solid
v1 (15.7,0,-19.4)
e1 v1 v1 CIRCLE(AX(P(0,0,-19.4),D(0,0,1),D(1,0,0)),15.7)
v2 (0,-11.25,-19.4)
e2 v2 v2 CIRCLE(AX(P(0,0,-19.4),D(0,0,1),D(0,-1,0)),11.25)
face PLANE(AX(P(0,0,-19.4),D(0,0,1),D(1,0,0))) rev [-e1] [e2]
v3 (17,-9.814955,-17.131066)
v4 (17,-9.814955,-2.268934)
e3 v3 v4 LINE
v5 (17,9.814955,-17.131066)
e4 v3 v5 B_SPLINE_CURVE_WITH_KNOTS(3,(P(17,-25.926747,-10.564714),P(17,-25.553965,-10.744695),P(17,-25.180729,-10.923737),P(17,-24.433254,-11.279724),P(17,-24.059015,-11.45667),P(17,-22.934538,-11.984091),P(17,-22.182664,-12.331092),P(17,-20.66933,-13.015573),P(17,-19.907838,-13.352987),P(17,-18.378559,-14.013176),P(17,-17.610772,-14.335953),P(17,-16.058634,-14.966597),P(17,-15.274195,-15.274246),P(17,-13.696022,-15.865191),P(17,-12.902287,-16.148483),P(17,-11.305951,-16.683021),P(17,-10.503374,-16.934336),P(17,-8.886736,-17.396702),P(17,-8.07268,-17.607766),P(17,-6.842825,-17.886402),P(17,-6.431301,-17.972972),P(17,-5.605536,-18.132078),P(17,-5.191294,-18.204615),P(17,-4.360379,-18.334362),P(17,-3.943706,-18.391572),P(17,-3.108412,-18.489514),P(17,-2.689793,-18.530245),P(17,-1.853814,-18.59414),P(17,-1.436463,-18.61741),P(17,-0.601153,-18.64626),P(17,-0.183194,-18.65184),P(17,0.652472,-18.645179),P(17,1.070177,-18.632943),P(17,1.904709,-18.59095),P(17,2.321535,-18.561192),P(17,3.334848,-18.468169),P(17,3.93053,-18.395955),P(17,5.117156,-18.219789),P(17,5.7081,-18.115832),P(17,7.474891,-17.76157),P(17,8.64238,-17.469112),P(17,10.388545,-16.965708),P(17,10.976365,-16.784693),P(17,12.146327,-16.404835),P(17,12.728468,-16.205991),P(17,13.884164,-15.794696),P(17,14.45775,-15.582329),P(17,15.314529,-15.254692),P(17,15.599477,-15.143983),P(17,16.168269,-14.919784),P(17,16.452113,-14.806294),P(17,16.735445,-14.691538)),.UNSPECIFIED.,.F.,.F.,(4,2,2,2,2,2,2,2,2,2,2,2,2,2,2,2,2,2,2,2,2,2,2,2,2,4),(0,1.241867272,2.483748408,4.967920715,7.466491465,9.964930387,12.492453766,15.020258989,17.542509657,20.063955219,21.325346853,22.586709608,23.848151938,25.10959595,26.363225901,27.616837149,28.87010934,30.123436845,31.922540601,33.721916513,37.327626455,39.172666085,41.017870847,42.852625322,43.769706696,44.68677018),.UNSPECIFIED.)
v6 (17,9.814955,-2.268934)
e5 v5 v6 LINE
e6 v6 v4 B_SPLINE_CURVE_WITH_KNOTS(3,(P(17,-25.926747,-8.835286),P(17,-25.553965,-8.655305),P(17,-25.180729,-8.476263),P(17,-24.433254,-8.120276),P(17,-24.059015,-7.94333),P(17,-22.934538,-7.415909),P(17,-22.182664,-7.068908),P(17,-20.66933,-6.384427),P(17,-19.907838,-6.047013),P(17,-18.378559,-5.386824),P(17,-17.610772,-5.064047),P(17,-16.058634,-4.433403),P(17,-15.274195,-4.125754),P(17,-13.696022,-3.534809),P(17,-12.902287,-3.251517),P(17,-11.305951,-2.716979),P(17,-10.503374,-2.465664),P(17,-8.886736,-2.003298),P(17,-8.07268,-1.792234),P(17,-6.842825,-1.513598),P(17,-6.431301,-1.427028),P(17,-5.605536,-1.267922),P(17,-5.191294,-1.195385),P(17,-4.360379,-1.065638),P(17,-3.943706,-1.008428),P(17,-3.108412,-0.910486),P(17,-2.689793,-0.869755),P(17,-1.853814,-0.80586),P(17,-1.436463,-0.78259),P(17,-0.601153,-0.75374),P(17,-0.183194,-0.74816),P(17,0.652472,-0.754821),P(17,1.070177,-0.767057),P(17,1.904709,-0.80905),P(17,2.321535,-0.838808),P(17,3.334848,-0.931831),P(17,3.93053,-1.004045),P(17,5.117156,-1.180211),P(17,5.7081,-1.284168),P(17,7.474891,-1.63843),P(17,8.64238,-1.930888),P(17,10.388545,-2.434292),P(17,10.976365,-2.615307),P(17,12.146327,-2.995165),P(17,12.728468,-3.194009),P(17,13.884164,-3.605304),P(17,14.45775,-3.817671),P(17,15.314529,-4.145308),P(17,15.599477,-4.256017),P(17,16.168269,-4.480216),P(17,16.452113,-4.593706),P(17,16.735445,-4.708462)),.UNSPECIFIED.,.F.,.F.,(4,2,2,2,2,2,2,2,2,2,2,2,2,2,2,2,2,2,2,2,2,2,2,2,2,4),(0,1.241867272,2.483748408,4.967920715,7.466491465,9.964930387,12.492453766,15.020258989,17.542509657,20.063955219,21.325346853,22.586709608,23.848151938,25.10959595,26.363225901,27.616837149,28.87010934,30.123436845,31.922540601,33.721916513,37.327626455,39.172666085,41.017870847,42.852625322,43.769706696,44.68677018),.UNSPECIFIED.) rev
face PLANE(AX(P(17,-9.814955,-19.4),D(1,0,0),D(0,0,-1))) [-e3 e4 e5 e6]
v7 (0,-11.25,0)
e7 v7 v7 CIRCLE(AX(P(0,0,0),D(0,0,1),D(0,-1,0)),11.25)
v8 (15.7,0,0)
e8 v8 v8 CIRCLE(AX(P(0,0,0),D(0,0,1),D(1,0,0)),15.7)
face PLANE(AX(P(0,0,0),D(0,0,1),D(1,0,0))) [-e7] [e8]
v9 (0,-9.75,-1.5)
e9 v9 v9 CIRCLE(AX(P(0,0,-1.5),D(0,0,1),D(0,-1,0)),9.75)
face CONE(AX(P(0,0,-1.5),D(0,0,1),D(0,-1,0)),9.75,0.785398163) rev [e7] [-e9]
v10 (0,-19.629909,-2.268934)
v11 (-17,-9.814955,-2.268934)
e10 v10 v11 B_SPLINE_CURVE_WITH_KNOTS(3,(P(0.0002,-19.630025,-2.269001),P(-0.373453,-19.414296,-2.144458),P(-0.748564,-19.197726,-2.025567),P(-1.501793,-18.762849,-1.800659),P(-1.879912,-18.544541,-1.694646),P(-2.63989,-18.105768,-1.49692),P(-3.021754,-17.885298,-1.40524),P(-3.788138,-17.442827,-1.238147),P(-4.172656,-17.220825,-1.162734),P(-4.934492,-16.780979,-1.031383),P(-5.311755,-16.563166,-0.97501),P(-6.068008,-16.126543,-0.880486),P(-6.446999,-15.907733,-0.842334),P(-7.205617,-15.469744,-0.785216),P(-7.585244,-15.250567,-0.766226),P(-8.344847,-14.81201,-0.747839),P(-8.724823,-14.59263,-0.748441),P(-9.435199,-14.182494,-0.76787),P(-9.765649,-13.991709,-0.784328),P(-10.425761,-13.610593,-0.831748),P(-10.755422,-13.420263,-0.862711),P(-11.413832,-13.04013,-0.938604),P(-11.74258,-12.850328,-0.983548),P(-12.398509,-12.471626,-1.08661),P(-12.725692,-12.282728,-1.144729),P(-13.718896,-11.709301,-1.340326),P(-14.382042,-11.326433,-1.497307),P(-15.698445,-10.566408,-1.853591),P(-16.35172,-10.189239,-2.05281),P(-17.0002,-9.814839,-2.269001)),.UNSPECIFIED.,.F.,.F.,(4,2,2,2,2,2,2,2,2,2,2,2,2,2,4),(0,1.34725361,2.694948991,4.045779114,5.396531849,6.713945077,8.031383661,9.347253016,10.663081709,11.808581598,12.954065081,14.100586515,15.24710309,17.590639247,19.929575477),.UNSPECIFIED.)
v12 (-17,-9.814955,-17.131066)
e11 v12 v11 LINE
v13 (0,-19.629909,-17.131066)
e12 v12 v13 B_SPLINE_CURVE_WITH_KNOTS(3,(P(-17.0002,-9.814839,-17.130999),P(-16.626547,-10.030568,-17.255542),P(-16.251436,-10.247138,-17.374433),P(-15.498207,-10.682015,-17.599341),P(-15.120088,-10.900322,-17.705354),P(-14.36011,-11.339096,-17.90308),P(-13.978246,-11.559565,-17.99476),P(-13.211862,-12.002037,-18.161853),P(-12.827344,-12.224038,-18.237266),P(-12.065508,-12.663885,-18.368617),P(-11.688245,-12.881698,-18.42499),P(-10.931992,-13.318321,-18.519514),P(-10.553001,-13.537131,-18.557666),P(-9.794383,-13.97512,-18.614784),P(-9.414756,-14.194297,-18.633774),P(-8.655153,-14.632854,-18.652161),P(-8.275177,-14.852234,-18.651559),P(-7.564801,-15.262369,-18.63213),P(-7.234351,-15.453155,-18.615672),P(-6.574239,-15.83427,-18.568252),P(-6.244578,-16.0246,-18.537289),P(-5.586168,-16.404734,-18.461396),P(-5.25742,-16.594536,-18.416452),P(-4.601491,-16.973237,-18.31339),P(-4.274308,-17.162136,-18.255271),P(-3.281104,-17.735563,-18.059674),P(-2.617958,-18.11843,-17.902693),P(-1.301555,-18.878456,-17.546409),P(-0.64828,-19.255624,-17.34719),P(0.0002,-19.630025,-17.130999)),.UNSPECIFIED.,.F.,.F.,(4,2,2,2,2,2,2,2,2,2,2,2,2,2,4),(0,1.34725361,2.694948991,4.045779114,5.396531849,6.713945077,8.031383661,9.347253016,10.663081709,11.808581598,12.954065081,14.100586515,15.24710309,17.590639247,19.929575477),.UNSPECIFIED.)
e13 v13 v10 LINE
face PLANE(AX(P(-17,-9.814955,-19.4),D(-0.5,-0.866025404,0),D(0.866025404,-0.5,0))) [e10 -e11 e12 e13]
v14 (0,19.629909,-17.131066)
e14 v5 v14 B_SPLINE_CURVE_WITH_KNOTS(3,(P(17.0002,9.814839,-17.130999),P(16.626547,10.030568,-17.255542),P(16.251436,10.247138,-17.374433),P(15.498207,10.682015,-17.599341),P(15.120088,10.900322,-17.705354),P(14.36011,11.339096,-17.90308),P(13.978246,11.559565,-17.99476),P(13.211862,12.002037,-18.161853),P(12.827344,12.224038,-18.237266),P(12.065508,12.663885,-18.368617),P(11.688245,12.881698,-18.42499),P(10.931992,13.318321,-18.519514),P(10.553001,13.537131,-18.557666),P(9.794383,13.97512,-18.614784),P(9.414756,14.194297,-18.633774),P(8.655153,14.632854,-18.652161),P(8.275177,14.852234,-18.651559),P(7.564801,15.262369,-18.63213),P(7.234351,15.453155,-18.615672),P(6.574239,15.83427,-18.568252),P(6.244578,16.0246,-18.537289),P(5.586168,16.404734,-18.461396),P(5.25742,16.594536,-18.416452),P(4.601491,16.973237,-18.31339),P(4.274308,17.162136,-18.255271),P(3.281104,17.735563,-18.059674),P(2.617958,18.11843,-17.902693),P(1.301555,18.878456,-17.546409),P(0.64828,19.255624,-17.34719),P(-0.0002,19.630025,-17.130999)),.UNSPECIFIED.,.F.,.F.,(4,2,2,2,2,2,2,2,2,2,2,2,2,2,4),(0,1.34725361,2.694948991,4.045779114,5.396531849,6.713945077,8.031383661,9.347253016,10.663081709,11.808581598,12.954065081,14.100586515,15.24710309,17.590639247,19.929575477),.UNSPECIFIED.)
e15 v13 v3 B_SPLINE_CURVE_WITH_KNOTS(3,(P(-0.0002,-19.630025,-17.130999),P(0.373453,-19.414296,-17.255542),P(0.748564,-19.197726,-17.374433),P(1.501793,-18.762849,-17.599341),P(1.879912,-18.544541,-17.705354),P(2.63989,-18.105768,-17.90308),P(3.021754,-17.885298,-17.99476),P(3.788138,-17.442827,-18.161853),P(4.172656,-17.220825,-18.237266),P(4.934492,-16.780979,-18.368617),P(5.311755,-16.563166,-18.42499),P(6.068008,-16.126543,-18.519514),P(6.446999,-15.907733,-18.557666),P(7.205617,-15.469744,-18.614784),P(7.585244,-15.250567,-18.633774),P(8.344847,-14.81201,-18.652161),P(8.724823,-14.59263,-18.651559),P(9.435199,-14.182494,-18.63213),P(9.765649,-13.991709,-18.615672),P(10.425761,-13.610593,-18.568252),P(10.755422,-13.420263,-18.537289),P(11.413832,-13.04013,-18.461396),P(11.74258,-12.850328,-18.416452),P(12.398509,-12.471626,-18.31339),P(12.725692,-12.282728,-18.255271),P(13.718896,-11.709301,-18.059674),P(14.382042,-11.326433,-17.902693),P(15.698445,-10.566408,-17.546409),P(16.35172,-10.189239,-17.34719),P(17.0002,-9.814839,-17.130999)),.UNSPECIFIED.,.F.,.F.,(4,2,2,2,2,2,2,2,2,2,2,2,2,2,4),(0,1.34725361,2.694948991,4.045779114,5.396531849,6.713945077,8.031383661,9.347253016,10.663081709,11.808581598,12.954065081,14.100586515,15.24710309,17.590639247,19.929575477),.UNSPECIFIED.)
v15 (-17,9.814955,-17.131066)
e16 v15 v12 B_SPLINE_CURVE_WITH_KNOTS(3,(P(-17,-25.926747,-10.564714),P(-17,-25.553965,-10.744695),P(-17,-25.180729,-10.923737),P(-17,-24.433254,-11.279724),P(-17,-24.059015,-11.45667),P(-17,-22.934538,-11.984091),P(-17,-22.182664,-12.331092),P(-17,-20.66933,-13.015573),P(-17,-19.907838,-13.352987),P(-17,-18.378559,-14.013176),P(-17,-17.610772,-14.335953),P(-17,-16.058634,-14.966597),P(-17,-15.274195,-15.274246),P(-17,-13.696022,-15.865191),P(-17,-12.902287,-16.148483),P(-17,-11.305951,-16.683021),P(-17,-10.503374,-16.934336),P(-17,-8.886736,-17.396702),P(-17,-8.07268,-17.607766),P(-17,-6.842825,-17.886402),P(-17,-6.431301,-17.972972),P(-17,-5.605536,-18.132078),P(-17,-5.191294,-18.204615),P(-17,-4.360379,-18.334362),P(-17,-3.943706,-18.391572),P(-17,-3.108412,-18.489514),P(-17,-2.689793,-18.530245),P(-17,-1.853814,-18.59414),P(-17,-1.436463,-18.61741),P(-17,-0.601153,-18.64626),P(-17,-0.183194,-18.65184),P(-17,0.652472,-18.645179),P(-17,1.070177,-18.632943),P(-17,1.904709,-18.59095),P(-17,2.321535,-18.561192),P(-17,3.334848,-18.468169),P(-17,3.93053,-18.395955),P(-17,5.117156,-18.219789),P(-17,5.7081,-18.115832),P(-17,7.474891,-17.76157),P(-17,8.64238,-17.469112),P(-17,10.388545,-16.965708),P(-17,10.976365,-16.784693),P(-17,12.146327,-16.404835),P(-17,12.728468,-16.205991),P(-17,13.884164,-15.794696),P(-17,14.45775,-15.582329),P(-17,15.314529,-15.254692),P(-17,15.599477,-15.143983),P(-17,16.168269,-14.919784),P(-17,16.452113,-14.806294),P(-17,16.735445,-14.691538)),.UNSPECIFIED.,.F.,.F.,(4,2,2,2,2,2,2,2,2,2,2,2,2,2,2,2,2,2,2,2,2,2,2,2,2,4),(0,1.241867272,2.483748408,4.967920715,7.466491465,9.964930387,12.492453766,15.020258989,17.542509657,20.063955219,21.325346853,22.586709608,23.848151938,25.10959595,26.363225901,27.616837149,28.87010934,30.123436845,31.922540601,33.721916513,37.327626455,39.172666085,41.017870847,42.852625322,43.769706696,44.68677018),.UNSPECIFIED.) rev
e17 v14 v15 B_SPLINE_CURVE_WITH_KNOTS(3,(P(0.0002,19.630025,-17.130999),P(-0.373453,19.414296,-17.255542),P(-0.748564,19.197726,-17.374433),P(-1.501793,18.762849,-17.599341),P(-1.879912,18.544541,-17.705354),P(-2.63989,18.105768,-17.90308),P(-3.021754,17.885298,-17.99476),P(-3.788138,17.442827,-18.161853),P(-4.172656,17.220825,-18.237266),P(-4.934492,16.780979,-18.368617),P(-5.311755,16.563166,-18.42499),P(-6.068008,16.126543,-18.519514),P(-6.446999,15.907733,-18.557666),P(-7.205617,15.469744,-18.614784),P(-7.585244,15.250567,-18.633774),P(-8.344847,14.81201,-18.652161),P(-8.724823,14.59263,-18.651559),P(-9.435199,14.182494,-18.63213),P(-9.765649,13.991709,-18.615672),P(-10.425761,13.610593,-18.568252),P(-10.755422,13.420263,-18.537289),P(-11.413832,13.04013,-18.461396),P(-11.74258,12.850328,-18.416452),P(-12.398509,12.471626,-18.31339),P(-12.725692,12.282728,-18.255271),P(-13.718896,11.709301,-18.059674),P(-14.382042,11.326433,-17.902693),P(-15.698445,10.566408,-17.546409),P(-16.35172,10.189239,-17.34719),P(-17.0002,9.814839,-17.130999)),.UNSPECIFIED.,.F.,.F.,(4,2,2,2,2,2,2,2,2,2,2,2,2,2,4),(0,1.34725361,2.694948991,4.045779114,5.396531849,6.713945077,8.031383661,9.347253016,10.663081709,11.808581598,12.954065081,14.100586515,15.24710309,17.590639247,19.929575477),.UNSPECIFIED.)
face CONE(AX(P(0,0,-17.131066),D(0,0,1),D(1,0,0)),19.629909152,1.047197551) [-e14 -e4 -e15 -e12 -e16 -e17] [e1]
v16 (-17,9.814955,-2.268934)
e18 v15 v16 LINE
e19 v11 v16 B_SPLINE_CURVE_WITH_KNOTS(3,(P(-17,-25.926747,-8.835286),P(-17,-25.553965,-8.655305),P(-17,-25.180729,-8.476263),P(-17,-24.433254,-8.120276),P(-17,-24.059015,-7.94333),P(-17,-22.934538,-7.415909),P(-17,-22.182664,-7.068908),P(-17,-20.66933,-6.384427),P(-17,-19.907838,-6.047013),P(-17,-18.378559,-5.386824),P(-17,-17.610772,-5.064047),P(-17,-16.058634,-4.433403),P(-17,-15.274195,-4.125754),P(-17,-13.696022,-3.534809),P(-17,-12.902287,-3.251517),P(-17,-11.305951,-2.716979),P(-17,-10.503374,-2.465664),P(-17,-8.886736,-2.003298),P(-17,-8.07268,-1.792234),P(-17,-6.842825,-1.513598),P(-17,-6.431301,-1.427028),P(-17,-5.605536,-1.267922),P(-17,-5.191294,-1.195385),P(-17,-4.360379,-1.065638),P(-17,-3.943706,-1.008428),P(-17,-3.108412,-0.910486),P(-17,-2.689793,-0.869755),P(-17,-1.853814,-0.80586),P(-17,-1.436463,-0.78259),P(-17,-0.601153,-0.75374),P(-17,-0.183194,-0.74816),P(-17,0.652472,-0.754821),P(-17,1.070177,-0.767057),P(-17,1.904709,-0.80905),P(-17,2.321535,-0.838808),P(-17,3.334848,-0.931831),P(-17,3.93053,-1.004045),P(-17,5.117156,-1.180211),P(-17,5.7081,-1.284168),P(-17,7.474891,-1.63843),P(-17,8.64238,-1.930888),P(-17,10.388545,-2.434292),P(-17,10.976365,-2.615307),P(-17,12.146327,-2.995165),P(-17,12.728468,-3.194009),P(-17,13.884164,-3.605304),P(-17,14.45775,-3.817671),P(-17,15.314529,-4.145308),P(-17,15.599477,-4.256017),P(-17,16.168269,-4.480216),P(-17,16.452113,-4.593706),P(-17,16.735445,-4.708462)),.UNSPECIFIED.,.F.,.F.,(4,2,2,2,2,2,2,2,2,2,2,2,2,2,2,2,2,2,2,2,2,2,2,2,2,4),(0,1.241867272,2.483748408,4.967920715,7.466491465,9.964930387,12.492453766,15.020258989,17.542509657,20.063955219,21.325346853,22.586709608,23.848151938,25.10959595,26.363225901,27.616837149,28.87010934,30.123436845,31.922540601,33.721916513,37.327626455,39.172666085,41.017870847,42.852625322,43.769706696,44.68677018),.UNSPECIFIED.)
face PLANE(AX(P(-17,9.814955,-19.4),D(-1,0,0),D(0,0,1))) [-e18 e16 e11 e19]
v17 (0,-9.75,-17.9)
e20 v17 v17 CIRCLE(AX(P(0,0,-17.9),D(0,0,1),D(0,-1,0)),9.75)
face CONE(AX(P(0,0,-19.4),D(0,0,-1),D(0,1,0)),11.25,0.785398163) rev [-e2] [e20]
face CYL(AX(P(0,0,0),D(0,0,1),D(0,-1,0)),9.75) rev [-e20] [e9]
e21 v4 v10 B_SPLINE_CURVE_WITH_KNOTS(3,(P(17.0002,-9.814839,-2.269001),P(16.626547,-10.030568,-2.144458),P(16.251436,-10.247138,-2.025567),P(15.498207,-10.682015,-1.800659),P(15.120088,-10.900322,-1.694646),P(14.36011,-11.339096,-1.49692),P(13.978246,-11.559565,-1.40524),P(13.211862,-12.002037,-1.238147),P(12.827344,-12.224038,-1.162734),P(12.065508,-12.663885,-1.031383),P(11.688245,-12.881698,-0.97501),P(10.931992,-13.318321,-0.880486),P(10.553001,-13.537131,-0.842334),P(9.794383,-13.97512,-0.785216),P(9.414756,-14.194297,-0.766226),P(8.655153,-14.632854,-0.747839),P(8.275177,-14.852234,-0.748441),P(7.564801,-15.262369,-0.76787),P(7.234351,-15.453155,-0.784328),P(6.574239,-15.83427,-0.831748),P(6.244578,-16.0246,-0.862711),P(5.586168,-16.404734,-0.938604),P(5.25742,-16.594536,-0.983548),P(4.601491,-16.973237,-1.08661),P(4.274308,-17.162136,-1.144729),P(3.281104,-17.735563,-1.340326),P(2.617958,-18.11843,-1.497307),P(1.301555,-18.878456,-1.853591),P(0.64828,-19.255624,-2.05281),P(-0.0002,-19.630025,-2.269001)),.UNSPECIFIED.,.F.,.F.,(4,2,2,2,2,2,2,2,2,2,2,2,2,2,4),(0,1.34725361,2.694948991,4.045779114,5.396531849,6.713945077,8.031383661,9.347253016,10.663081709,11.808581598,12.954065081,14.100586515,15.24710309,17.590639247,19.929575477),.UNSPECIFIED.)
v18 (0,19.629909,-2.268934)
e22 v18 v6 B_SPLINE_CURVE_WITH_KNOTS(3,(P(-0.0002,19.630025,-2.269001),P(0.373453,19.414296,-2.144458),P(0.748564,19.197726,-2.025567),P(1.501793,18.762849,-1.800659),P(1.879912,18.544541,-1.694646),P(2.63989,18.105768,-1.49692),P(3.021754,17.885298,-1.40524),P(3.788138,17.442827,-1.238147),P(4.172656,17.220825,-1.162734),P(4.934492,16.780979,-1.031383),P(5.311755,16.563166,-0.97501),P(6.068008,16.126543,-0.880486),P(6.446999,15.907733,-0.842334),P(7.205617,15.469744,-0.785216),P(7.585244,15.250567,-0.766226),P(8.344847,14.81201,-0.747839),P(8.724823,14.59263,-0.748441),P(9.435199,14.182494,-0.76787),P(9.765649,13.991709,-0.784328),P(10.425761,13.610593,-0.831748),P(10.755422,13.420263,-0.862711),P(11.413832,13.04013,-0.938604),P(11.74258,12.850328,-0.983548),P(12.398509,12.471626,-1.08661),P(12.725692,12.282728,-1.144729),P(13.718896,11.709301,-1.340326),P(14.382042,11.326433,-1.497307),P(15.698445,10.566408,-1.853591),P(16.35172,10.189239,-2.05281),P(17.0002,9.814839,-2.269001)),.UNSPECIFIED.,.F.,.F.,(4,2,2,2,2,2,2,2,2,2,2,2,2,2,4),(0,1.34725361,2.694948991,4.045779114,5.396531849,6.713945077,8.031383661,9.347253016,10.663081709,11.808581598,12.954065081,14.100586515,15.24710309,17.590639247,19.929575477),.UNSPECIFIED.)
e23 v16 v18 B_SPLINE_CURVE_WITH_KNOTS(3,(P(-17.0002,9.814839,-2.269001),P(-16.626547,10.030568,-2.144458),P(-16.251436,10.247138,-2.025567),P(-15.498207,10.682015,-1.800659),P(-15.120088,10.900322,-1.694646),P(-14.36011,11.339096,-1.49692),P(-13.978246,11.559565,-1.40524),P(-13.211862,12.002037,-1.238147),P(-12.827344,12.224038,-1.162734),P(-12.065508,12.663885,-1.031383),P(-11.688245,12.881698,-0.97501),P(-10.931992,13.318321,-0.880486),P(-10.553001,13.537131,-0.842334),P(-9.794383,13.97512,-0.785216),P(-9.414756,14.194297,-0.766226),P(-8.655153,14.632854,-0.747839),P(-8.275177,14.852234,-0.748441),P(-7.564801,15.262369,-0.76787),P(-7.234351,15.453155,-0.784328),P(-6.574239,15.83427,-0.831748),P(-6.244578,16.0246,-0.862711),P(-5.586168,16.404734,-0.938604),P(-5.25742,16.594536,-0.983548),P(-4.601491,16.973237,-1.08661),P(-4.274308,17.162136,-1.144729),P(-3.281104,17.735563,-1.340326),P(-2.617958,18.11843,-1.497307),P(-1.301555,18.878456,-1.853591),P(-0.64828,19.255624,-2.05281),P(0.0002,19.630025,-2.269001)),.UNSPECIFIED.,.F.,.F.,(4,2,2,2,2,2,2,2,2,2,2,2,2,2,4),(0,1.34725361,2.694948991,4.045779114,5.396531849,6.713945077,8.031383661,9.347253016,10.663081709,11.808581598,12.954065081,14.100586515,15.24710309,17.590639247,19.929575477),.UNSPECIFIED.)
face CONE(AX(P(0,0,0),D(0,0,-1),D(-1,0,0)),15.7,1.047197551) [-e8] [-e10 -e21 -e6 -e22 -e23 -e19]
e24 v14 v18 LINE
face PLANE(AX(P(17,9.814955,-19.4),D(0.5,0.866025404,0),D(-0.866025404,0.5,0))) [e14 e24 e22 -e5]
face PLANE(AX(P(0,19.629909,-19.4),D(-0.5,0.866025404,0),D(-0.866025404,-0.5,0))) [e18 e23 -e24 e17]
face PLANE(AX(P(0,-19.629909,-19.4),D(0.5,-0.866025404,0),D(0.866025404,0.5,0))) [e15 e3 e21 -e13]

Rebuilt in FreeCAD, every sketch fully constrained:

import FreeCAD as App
import Part
import Sketcher

V = App.Vector
Q = App.Units.Quantity


def add_polygon(sketch, points):
    """Adds a closed chain of lines whose ends are joined by coincident constraints."""
    first, n = sketch.GeometryCount, len(points)
    for a, b in zip(points, points[1:] + points[:1]):
        sketch.addGeometry(Part.LineSegment(App.Vector(*a, 0), App.Vector(*b, 0)), False)
    for i in range(n):
        sketch.addConstraint(Sketcher.Constraint("Coincident", first + i, 2, first + (i + 1) % n, 1))

doc = App.newDocument("Part")
body = doc.addObject("PartDesign::Body", "Body")

# Sketch on XY plane
sketch1 = body.newObject("Sketcher::SketchObject", "Sketch")
sketch1.AttachmentSupport = (doc.getObject("XY_Plane"), [""])
sketch1.MapMode = "FlatFace"
add_polygon(sketch1, [(0, 20), (-17, 10), (-17, -10), (0, -20), (17, -10), (17, 10)])  # lines 0-5
sketch1.addConstraint(Sketcher.Constraint("Vertical", 1))
sketch1.addConstraint(Sketcher.Constraint("Vertical", 4))
sketch1.addConstraint(Sketcher.Constraint("Symmetric", 0, 2, 3, 2, -1, 1))
sketch1.addConstraint(Sketcher.Constraint("Symmetric", 2, 2, 5, 2, -1, 1))
sketch1.addConstraint(Sketcher.Constraint("PointOnObject", 2, 2, -2))
sketch1.addConstraint(Sketcher.Constraint("Parallel", 2, 5))
sketch1.addConstraint(Sketcher.Constraint("Horizontal", 1, 2, 3, 2))
sketch1.addConstraint(Sketcher.Constraint("Angle", 0, Q("-150 deg")))
sketch1.addConstraint(Sketcher.Constraint("DistanceX", 0, 2, -1, 1, Q("17 mm")))
sketch1.addConstraint(Sketcher.Constraint("DistanceY", 1, 2, 1, 1, Q("19.629909 mm")))
pad1 = body.newObject("PartDesign::Pad", "Pad")
pad1.Profile = sketch1
pad1.Length = 19.4
pad1.Reversed = True

# Sketch on YZ plane
sketch2 = body.newObject("Sketcher::SketchObject", "Sketch001")
sketch2.AttachmentSupport = (doc.getObject("YZ_Plane"), [""])
sketch2.MapMode = "FlatFace"
add_polygon(sketch2, [(19.6, -19.4), (19.6, -17.1), (15.7, -19.4)])  # lines 0-2
add_polygon(sketch2, [(19.6, -2.3), (19.6, 0), (15.7, 0)])  # lines 3-5
sketch2.addConstraint(Sketcher.Constraint("Vertical", 0))
sketch2.addConstraint(Sketcher.Constraint("Horizontal", 2))
sketch2.addConstraint(Sketcher.Constraint("Vertical", 3))
sketch2.addConstraint(Sketcher.Constraint("Horizontal", 4))
sketch2.addConstraint(Sketcher.Constraint("PointOnObject", 3, 2, -1))
sketch2.addConstraint(Sketcher.Constraint("Vertical", 2, 2, 3, 2))
sketch2.addConstraint(Sketcher.Constraint("Vertical", 1, 2, 4, 2))
sketch2.addConstraint(Sketcher.Constraint("Equal", 0, 3))
sketch2.addConstraint(Sketcher.Constraint("Angle", 1, Q("-150 deg")))
sketch2.addConstraint(Sketcher.Constraint("DistanceX", -1, 1, 1, 2, Q("15.7 mm")))
sketch2.addConstraint(Sketcher.Constraint("DistanceY", 1, 2, -1, 1, Q("19.4 mm")))
sketch2.addConstraint(Sketcher.Constraint("DistanceX", 2, 1, 2, 2, Q("3.929909 mm")))
groove = body.newObject("PartDesign::Groove", "Groove")
groove.Profile = sketch2
groove.ReferenceAxis = (sketch2, ["V_Axis"])
groove.Angle = 360

# Sketch on YZ plane
sketch3 = body.newObject("Sketcher::SketchObject", "Sketch002")
sketch3.AttachmentSupport = (doc.getObject("YZ_Plane"), [""])
sketch3.MapMode = "FlatFace"
add_polygon(sketch3, [(11.2, 0), (0, 0), (0, -19.4), (11.2, -19.4), (9.8, -17.9), (9.8, -1.5)])  # lines 0-5
sketch3.addConstraint(Sketcher.Constraint("Horizontal", 0))
sketch3.addConstraint(Sketcher.Constraint("Vertical", 1))
sketch3.addConstraint(Sketcher.Constraint("Horizontal", 2))
sketch3.addConstraint(Sketcher.Constraint("Vertical", 4))
sketch3.addConstraint(Sketcher.Constraint("Coincident", 0, 2, -1, 1))
sketch3.addConstraint(Sketcher.Constraint("Perpendicular", 3, 5))
sketch3.addConstraint(Sketcher.Constraint("Vertical", 2, 2, 5, 2))
sketch3.addConstraint(Sketcher.Constraint("Equal", 3, 5))
sketch3.addConstraint(Sketcher.Constraint("DistanceY", 1, 2, 1, 1, Q("19.4 mm")))
sketch3.addConstraint(Sketcher.Constraint("DistanceY", 4, 1, 4, 2, Q("16.4 mm")))
sketch3.addConstraint(Sketcher.Constraint("DistanceX", 0, 2, 0, 1, Q("11.25 mm")))
groove2 = body.newObject("PartDesign::Groove", "Groove001")
groove2.Profile = sketch3
groove2.ReferenceAxis = (sketch3, ["V_Axis"])
groove2.Angle = 360

doc.recompute()
